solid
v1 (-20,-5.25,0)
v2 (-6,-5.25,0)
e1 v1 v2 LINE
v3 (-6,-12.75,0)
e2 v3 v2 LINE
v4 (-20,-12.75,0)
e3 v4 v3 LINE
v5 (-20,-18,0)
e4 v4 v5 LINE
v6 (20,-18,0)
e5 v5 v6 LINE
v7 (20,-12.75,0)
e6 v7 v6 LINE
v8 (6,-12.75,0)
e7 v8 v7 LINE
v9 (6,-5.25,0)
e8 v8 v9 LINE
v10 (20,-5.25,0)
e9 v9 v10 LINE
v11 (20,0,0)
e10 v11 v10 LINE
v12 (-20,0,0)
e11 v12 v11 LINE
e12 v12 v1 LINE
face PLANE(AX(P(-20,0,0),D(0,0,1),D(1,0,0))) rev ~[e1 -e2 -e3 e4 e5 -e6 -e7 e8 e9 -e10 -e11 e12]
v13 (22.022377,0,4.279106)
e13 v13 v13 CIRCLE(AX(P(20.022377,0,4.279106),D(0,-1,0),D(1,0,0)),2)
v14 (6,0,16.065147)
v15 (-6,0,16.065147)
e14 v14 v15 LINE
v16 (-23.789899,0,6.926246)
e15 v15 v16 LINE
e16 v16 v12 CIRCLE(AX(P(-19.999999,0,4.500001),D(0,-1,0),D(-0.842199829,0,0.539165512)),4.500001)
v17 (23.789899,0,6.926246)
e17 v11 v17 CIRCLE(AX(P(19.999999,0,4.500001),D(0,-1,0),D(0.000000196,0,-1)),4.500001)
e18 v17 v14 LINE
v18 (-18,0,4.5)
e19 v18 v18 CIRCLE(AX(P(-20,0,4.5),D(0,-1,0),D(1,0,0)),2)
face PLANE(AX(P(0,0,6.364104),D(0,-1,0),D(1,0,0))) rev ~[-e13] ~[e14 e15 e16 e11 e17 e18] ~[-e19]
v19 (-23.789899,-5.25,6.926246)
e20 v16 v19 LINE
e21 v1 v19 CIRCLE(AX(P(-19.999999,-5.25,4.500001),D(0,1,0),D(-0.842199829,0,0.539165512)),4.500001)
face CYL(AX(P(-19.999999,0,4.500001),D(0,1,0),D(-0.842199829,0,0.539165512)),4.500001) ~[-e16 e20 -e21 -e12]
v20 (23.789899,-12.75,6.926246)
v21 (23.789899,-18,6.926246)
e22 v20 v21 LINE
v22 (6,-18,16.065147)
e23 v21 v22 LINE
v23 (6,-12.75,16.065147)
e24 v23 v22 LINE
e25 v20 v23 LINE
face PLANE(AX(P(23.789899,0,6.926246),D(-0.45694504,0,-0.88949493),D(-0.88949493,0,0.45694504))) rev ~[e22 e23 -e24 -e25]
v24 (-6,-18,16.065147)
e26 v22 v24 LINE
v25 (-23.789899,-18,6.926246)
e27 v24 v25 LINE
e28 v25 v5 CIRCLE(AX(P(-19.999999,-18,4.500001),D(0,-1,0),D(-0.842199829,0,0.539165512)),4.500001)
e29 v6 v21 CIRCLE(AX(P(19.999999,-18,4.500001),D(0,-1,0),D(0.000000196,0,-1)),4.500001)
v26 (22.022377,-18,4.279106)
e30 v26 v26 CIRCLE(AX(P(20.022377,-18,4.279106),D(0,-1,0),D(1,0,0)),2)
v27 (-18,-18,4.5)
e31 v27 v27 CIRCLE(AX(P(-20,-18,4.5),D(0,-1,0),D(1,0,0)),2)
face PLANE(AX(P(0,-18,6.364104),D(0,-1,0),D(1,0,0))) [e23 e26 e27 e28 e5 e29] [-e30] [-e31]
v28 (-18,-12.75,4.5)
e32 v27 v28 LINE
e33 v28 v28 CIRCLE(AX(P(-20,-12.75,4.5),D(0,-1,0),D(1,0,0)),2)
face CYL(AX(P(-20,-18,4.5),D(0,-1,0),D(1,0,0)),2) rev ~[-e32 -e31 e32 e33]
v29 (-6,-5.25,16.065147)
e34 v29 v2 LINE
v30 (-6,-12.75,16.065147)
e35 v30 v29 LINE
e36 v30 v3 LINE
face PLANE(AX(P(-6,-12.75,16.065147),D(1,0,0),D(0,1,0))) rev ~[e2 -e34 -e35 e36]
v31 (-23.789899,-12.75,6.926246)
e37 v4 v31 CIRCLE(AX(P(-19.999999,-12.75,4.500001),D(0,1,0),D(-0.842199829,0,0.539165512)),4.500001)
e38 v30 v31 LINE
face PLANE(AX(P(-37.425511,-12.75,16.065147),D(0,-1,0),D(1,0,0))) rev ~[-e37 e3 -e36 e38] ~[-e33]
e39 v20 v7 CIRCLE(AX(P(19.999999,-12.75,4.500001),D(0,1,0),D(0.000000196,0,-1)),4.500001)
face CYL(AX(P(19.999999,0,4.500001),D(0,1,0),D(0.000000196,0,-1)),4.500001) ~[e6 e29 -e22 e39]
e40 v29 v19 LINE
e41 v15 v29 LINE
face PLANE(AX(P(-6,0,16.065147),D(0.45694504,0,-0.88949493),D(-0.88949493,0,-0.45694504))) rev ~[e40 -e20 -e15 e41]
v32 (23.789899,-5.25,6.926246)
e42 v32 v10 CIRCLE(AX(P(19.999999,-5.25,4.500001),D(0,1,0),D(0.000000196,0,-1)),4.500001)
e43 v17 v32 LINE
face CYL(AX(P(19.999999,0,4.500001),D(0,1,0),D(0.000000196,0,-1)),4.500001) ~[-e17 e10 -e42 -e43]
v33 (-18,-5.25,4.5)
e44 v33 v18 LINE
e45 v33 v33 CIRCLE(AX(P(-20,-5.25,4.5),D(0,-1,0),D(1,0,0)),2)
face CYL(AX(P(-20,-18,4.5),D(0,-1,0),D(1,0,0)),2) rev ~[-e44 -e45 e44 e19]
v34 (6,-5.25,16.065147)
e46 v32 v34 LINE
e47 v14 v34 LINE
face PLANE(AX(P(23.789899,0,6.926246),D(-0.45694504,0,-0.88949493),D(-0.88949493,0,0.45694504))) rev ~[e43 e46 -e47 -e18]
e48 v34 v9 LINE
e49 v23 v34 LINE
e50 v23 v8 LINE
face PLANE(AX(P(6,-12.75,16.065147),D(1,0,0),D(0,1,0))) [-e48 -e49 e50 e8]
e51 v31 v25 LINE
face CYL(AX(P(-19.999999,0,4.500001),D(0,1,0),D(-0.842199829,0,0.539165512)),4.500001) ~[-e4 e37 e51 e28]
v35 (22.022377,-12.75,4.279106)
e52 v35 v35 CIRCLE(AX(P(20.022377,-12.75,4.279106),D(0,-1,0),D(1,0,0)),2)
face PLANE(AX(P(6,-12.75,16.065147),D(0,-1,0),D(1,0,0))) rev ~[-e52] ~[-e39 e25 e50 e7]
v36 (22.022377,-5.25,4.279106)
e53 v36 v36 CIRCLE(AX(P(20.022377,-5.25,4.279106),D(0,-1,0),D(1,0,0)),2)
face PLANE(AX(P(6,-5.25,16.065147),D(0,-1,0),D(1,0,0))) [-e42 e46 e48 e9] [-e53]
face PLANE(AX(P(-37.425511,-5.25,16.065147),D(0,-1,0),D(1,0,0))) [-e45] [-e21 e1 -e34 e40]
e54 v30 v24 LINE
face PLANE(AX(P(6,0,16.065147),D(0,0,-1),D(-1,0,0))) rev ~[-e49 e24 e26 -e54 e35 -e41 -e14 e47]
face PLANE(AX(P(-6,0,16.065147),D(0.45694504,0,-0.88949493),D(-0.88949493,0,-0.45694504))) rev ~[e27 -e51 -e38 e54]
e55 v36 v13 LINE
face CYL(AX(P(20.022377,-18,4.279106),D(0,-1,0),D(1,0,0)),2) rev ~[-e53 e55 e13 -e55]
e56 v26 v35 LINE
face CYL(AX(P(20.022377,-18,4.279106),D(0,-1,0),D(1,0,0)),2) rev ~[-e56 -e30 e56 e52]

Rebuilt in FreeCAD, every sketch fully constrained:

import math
import FreeCAD as App
import Part
import Sketcher

V = App.Vector

doc = App.newDocument("Part")
body = doc.addObject("PartDesign::Body", "Body")

# Sketch on XZ plane
sketch1 = body.newObject("Sketcher::SketchObject", "Sketch")
sketch1.AttachmentSupport = (doc.getObject("XZ_Plane"), [""])
sketch1.MapMode = "FlatFace"
sketch1.addGeometry([
    Part.LineSegment(V(-20, 0, 0), V(20, 0, 0)),  # 0
    Part.ArcOfCircle(Part.Circle(V(19.999999, 4.500001, 0), V(0, 0, 1), 4.500001), math.radians(-89.999989), math.radians(32.62685)),  # 1
    Part.LineSegment(V(23.789899, 6.926246, 0), V(6, 16.065147, 0)),  # 2
    Part.LineSegment(V(6, 16.065147, 0), V(-6, 16.065147, 0)),  # 3
    Part.LineSegment(V(-6, 16.065147, 0), V(-23.789899, 6.926246, 0)),  # 4
    Part.ArcOfCircle(Part.Circle(V(-19.999999, 4.500001, 0), V(0, 0, 1), 4.500001), math.radians(147.37315), math.radians(269.999989)),  # 5
], False)
sketch1.addConstraint([
    Sketcher.Constraint("Tangent", 0, 2, 1, 1),
    Sketcher.Constraint("Coincident", 1, 2, 2, 1),
    Sketcher.Constraint("Coincident", 2, 2, 3, 1),
    Sketcher.Constraint("Coincident", 3, 2, 4, 1),
    Sketcher.Constraint("Coincident", 4, 2, 5, 1),
    Sketcher.Constraint("Tangent", 5, 2, 0, 1),
    Sketcher.Constraint("Horizontal", 0),
    Sketcher.Constraint("Horizontal", 3),
    Sketcher.Constraint("Equal", 1, 5),
    Sketcher.Constraint("Symmetric", 0, 2, 5, 2, -1, 1),
    Sketcher.Constraint("Horizontal", 1, 2, 4, 2),
    Sketcher.Constraint("Equal", 2, 4),
    Sketcher.Constraint("Radius", 1, 4.500001),
    Sketcher.Constraint("DistanceX", 0, 1, 0, 2, 40.0),
    Sketcher.Constraint("DistanceX", 3, 2, 3, 1, 12.0),
    Sketcher.Constraint("Distance", 2, 20.0),
    Sketcher.Constraint("DistanceX", -1, 1, 1, 2, 23.789899),
])
pad1 = body.newObject("PartDesign::Pad", "Pad")
pad1.Profile = sketch1
pad1.Length = 18

# Sketch on XY plane
sketch2 = body.newObject("Sketcher::SketchObject", "Sketch001")
sketch2.AttachmentSupport = (doc.getObject("XY_Plane"), [""])
sketch2.MapMode = "FlatFace"
sketch2.AttachmentOffset = App.Placement(V(0, 0, 16.065147), App.Rotation())
sketch2.addGeometry([
    Part.LineSegment(V(-37.425511, -5.25, 0), V(-37.425511, -12.75, 0)),  # 0
    Part.LineSegment(V(-37.425511, -12.75, 0), V(-6, -12.75, 0)),  # 1
    Part.LineSegment(V(-6, -12.75, 0), V(-6, -5.25, 0)),  # 2
    Part.LineSegment(V(-6, -5.25, 0), V(-37.425511, -5.25, 0)),  # 3
    Part.LineSegment(V(6, -5.25, 0), V(6, -12.75, 0)),  # 4
    Part.LineSegment(V(6, -12.75, 0), V(37.425511, -12.75, 0)),  # 5
    Part.LineSegment(V(37.425511, -12.75, 0), V(37.425511, -5.25, 0)),  # 6
    Part.LineSegment(V(37.425511, -5.25, 0), V(6, -5.25, 0)),  # 7
], False)
sketch2.addConstraint([
    Sketcher.Constraint("Coincident", 0, 2, 1, 1),
    Sketcher.Constraint("Coincident", 1, 2, 2, 1),
    Sketcher.Constraint("Coincident", 2, 2, 3, 1),
    Sketcher.Constraint("Coincident", 3, 2, 0, 1),
    Sketcher.Constraint("Coincident", 4, 2, 5, 1),
    Sketcher.Constraint("Coincident", 5, 2, 6, 1),
    Sketcher.Constraint("Coincident", 6, 2, 7, 1),
    Sketcher.Constraint("Coincident", 7, 2, 4, 1),
    Sketcher.Constraint("Vertical", 0),
    Sketcher.Constraint("Horizontal", 1),
    Sketcher.Constraint("Vertical", 2),
    Sketcher.Constraint("Horizontal", 3),
    Sketcher.Constraint("Vertical", 4),
    Sketcher.Constraint("Horizontal", 5),
    Sketcher.Constraint("Vertical", 6),
    Sketcher.Constraint("Horizontal", 7),
    Sketcher.Constraint("Symmetric", 1, 2, 4, 2, -2),
    Sketcher.Constraint("Symmetric", 3, 2, 6, 2, -2),
    Sketcher.Constraint("DistanceY", 0, 2, 0, 1, 7.5),
    Sketcher.Constraint("DistanceX", 1, 2, -1, 1, 6.0),
    Sketcher.Constraint("DistanceY", 0, 2, -1, 1, 12.75),
    Sketcher.Constraint("DistanceX", 1, 1, 1, 2, 31.425511),
])
pocket1 = body.newObject("PartDesign::Pocket", "Pocket")
pocket1.Profile = sketch2
pocket1.Length = 25

# Sketch on XZ plane
sketch3 = body.newObject("Sketcher::SketchObject", "Sketch002")
sketch3.AttachmentSupport = (doc.getObject("XZ_Plane"), [""])
sketch3.MapMode = "FlatFace"
sketch3.AttachmentOffset = App.Placement(V(0, 0, 18), App.Rotation())
sketch3.addGeometry([
    Part.Circle(V(-20, 4.5, 0), V(0, 0, 1), 2),
    Part.Circle(V(20.022377, 4.279106, 0), V(0, 0, 1), 2),
], False)
sketch3.addConstraint([
    Sketcher.Constraint("Equal", 0, 1),
    Sketcher.Constraint("Diameter", 0, 4.0),
    Sketcher.Constraint("DistanceX", 0, 3, -1, 1, 20.0),
    Sketcher.Constraint("DistanceY", -1, 1, 0, 3, 4.5),
    Sketcher.Constraint("DistanceX", -1, 1, 1, 3, 20.022377),
    Sketcher.Constraint("DistanceY", -1, 1, 1, 3, 4.279106),
])
pocket2 = body.newObject("PartDesign::Pocket", "Pocket001")
pocket2.Profile = sketch3
pocket2.Length = 25

doc.recompute()
